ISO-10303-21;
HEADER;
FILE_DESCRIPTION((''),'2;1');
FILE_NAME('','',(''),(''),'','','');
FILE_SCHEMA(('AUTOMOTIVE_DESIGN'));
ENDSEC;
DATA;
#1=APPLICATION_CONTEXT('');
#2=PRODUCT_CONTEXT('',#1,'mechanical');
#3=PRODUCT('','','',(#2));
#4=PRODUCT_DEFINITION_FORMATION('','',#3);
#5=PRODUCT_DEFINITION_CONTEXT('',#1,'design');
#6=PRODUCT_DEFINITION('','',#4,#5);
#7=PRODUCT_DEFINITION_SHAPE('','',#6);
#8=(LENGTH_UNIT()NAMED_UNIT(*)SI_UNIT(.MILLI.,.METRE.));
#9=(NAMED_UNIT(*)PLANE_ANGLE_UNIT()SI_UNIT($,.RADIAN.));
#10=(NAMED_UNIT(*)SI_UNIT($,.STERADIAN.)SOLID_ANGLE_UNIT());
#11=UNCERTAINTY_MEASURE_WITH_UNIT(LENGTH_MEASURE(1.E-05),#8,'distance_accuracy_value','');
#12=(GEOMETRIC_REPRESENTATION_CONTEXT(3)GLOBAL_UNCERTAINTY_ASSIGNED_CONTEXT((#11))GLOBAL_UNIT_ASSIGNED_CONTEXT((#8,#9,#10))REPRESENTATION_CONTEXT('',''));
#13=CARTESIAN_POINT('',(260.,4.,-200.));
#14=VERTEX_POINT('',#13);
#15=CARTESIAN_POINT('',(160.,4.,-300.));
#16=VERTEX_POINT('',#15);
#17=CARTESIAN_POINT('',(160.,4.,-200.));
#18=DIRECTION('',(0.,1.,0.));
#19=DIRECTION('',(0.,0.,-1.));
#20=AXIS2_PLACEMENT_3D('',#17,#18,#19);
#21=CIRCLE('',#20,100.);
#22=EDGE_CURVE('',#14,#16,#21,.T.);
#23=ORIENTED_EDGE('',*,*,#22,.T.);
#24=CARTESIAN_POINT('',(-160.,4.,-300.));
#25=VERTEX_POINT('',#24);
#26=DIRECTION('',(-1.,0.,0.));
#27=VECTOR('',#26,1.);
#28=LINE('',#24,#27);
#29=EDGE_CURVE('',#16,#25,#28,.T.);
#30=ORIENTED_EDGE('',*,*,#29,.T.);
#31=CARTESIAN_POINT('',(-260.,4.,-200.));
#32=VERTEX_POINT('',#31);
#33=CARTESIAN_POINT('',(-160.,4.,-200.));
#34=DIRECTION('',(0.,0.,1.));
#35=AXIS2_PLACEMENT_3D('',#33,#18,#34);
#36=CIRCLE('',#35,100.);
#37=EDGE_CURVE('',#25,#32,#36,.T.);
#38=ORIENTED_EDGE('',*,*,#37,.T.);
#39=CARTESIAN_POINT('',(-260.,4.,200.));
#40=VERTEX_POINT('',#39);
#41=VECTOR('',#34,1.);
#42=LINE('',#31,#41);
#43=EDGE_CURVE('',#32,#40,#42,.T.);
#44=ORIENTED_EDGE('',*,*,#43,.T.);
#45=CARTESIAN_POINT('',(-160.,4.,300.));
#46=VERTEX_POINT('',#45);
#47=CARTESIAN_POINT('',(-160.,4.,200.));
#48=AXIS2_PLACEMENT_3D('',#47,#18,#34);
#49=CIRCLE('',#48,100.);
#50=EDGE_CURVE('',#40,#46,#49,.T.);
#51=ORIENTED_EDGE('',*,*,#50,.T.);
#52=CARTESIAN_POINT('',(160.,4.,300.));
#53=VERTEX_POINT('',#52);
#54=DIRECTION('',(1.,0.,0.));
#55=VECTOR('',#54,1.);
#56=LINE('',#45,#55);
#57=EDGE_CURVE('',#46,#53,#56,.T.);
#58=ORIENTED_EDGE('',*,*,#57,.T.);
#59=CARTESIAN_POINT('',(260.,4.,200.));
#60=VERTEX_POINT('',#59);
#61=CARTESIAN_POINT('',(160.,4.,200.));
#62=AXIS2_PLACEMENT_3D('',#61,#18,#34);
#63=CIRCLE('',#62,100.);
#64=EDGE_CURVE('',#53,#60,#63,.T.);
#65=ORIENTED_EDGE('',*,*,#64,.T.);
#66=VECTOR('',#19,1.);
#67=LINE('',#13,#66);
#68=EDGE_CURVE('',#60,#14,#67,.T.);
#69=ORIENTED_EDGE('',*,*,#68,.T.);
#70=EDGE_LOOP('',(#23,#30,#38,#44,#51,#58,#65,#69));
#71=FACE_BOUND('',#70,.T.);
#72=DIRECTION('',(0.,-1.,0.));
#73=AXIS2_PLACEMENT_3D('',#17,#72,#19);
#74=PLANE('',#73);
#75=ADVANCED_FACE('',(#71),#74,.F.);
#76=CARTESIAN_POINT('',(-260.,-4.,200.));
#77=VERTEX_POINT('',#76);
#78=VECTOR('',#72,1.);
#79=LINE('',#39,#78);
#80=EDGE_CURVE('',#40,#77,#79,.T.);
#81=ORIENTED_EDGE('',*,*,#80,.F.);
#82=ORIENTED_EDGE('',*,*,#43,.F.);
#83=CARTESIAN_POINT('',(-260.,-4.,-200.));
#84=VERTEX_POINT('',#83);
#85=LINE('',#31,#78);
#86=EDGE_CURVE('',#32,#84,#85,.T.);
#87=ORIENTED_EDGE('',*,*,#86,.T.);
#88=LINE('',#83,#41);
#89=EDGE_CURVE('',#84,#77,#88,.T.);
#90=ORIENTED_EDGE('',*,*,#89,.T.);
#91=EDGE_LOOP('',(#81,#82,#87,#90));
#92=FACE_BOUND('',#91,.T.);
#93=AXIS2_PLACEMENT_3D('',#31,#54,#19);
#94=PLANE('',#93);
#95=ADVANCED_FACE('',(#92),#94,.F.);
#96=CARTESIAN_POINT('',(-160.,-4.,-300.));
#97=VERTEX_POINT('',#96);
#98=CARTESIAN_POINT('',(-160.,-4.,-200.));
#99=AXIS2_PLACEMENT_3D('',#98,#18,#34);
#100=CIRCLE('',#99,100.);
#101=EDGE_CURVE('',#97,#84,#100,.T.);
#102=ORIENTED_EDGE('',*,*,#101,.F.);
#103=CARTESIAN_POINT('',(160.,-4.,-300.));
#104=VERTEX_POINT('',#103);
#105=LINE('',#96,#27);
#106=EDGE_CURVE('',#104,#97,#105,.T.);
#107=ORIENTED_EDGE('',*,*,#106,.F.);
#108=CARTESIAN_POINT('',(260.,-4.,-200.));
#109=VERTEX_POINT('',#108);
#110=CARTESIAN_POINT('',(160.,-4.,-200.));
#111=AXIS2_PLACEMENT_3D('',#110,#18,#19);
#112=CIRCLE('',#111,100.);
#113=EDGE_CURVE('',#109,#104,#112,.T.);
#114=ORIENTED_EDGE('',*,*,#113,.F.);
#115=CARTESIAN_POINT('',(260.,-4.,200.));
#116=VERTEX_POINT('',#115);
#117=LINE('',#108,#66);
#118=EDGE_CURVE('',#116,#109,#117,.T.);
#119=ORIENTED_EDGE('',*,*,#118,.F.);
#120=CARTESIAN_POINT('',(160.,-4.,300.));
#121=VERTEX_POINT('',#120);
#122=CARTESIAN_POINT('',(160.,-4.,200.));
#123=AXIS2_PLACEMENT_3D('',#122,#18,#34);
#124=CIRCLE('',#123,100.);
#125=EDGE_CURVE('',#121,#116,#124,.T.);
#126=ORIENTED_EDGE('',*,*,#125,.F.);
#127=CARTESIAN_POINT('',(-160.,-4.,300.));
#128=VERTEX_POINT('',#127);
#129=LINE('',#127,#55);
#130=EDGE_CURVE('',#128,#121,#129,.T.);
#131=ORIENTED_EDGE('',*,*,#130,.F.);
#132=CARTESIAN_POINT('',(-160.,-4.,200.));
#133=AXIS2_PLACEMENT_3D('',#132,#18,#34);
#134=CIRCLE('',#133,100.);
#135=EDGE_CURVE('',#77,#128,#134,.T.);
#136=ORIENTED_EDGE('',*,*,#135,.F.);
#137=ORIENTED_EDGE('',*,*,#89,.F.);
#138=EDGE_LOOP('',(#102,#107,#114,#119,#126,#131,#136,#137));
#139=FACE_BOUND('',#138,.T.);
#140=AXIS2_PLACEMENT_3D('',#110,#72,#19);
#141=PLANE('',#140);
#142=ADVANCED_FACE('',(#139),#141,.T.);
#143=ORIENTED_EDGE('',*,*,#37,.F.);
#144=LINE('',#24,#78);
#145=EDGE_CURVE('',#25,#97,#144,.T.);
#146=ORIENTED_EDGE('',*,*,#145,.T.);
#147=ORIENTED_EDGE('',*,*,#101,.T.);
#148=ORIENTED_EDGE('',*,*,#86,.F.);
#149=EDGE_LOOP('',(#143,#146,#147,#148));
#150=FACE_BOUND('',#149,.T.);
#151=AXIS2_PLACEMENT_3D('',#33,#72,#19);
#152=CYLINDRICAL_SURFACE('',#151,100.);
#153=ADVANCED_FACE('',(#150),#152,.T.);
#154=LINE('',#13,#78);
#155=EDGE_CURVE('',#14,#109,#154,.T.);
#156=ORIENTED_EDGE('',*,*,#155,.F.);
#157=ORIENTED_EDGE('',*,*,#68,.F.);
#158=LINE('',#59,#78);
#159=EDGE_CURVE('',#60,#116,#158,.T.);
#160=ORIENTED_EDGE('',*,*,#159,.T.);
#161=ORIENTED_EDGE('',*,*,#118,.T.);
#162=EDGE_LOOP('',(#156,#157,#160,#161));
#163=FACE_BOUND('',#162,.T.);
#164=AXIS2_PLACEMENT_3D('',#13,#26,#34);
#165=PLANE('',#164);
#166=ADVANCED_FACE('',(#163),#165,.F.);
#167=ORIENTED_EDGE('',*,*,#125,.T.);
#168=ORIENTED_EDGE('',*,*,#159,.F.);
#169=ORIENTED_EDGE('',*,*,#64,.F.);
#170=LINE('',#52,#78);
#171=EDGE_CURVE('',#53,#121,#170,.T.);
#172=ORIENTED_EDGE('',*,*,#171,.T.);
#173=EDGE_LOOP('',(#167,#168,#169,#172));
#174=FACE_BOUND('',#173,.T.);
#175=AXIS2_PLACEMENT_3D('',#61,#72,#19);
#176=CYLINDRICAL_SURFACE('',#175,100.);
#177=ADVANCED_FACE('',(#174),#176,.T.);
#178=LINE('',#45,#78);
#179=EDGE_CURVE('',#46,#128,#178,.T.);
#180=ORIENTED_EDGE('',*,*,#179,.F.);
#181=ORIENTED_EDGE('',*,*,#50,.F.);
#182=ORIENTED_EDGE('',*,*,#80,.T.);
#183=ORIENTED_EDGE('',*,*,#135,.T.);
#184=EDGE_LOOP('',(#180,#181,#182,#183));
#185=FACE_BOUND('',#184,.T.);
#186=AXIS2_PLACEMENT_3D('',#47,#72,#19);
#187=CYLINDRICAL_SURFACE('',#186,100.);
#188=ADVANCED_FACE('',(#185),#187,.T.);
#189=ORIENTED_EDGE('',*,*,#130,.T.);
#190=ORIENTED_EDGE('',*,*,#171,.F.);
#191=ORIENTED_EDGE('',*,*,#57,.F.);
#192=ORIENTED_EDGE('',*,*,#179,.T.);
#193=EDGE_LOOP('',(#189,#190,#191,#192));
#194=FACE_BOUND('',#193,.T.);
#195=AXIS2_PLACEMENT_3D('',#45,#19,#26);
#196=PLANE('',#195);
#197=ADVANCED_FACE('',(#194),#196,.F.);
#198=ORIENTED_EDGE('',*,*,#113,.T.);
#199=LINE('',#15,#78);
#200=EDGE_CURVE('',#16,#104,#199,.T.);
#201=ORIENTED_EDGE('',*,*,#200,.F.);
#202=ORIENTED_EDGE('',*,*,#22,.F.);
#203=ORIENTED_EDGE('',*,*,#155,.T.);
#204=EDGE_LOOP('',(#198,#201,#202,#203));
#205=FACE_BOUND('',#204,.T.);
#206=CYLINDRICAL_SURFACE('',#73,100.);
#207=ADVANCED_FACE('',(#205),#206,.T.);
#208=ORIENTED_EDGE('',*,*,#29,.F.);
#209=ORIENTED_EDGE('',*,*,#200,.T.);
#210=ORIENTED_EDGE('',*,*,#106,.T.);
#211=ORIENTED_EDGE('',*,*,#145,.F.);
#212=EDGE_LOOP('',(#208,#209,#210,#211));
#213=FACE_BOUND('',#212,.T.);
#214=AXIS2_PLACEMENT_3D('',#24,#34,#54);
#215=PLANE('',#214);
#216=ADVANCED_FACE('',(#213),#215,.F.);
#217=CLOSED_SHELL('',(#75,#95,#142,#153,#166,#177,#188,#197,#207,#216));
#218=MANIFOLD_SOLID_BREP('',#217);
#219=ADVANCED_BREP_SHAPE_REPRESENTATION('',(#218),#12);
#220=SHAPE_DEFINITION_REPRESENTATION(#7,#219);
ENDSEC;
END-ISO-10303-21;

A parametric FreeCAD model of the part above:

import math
import FreeCAD as App
import Part
import Sketcher
from FreeCAD import Vector

doc = App.newDocument("Part")
params = doc.addObject("Spreadsheet::Sheet", "Params")
for row, (alias, value) in enumerate([
    ("sketch1_radius", "100 mm"),
    ("sketch1_width", "320 mm"),
    ("sketch1_height", "400 mm"),
    ("pad1_length", "8 mm"),
], start=1):
    params.set(f"A{row}", alias)
    params.set(f"B{row}", "=" + value)
    params.setAlias(f"B{row}", alias)

body = doc.addObject("PartDesign::Body", "Body")

sketch1 = doc.addObject("Sketcher::SketchObject", "Sketch")
body.addObject(sketch1)
sketch1.AttachmentSupport = (doc.XZ_Plane, [""])
sketch1.MapMode = "FlatFace"
sketch1.addGeometry([
    Part.LineSegment(Vector(160, -300, 0), Vector(-160, -300, 0)),
    Part.ArcOfCircle(Part.Circle(Vector(-160, -200, 0), Vector(0, 0, 1), 100), math.radians(180), math.radians(270)),
    Part.LineSegment(Vector(-260, -200, 0), Vector(-260, 200, 0)),
    Part.ArcOfCircle(Part.Circle(Vector(-160, 200, 0), Vector(0, 0, 1), 100), math.radians(90), math.radians(180)),
    Part.LineSegment(Vector(-160, 300, 0), Vector(160, 300, 0)),
    Part.ArcOfCircle(Part.Circle(Vector(160, 200, 0), Vector(0, 0, 1), 100), math.radians(0), math.radians(90)),
    Part.LineSegment(Vector(260, 200, 0), Vector(260, -200, 0)),
    Part.ArcOfCircle(Part.Circle(Vector(160, -200, 0), Vector(0, 0, 1), 100), math.radians(-90), math.radians(0)),
], False)
sketch1.addConstraint([
    Sketcher.Constraint("Tangent", 0, 2, 1, 2),
    Sketcher.Constraint("Tangent", 1, 1, 2, 1),
    Sketcher.Constraint("Tangent", 2, 2, 3, 2),
    Sketcher.Constraint("Tangent", 3, 1, 4, 1),
    Sketcher.Constraint("Tangent", 4, 2, 5, 2),
    Sketcher.Constraint("Tangent", 5, 1, 6, 1),
    Sketcher.Constraint("Tangent", 6, 2, 7, 2),
    Sketcher.Constraint("Tangent", 7, 1, 0, 1),
    Sketcher.Constraint("Horizontal", 0),
    Sketcher.Constraint("Vertical", 2),
    Sketcher.Constraint("Horizontal", 4),
    Sketcher.Constraint("Vertical", 6),
    Sketcher.Constraint("Equal", 1, 3),
    Sketcher.Constraint("Equal", 3, 5),
    Sketcher.Constraint("Equal", 5, 7),
    Sketcher.Constraint("Symmetric", 1, 3, 5, 3, -1, 1),
    Sketcher.Constraint("Radius", 1, 100.0),
    Sketcher.Constraint("DistanceX", 0, 2, 0, 1, 320.0),
    Sketcher.Constraint("DistanceY", 2, 1, 2, 2, 400.0),
])
sketch1.setExpression("Constraints[16]", "Params.sketch1_radius")
sketch1.setExpression("Constraints[17]", "Params.sketch1_width")
sketch1.setExpression("Constraints[18]", "Params.sketch1_height")
pad1 = doc.addObject("PartDesign::Pad", "Pad")
body.addObject(pad1)
pad1.Profile = sketch1
pad1.setExpression("Length", "Params.pad1_length")
pad1.Midplane = True

doc.recompute()
